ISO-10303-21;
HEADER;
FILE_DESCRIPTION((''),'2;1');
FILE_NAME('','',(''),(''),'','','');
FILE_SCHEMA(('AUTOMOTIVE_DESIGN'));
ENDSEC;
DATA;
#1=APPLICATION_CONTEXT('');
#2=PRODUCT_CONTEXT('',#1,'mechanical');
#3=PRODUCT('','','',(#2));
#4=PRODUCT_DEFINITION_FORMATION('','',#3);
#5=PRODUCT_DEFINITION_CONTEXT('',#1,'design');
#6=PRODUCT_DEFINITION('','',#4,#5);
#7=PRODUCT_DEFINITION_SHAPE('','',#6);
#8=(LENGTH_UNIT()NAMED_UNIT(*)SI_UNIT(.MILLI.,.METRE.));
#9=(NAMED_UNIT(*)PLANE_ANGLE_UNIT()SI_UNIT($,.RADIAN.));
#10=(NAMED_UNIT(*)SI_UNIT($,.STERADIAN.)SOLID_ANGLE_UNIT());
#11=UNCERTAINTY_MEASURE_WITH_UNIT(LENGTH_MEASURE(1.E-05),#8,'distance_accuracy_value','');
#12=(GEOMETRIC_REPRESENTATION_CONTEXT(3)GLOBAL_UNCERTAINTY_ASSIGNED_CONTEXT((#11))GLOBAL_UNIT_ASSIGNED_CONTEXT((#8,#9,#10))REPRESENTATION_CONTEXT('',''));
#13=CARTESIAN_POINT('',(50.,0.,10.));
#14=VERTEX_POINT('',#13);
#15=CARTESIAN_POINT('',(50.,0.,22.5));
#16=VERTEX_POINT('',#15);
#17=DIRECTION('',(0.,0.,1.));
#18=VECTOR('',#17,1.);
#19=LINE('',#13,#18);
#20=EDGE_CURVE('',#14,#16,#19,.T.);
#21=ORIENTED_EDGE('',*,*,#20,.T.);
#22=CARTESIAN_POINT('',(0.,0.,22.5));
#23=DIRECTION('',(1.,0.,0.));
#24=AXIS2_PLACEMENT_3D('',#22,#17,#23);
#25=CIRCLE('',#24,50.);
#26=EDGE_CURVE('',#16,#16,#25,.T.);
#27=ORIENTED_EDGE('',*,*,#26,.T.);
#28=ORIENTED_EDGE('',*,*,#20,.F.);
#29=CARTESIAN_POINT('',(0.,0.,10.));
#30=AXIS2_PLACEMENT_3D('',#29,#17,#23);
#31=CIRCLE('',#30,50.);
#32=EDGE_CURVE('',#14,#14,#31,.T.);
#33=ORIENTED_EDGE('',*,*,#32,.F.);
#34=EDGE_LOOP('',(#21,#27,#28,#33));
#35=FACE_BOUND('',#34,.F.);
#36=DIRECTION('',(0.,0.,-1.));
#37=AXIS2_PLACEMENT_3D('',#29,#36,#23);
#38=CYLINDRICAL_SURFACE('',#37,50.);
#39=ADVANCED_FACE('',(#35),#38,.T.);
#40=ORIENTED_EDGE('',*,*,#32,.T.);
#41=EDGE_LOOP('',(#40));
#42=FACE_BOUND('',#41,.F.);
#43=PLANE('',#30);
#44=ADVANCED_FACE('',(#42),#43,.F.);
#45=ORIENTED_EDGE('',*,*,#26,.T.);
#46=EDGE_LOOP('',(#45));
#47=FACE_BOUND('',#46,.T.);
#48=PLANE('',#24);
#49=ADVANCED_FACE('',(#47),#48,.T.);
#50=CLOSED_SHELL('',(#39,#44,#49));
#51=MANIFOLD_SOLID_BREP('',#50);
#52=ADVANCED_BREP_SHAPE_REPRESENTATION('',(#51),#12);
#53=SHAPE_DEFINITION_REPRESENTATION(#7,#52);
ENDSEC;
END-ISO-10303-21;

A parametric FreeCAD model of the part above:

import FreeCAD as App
import Part
import Sketcher
from FreeCAD import Vector

doc = App.newDocument("Part")
params = doc.addObject("Spreadsheet::Sheet", "Params")
for row, (alias, value) in enumerate([
    ("sketch1_diameter", "100 mm"),
    ("pad1_length", "12.5 mm"),
], start=1):
    params.set(f"A{row}", alias)
    params.set(f"B{row}", "=" + value)
    params.setAlias(f"B{row}", alias)

body = doc.addObject("PartDesign::Body", "Body")

# Sketch on XY plane
sketch1 = doc.addObject("Sketcher::SketchObject", "Sketch")
body.addObject(sketch1)
sketch1.AttachmentSupport = (doc.XY_Plane, [""])
sketch1.MapMode = "FlatFace"
sketch1.addGeometry(Part.Circle(Vector(0, 0, 0), Vector(0, 0, 1), 50), False)
sketch1.addConstraint([
    Sketcher.Constraint("Coincident", 0, 3, -1, 1),
    Sketcher.Constraint("Diameter", 0, 100.0),
])
sketch1.setExpression("Constraints[1]", "Params.sketch1_diameter")
pad1 = doc.addObject("PartDesign::Pad", "Pad")
body.addObject(pad1)
pad1.Profile = sketch1
pad1.setExpression("Length", "Params.pad1_length")
body2 = doc.addObject("PartDesign::Body", "Body001")
doc.recompute()

body.Placement = App.Placement(Vector(0, 0, 10), App.Rotation(Vector(0, 0, 1), 0))
boolean = doc.addObject("PartDesign::Boolean", "Boolean")
body2.addObject(boolean)
boolean.Type = "Fuse"
boolean.addObjects([body])

doc.recompute()
